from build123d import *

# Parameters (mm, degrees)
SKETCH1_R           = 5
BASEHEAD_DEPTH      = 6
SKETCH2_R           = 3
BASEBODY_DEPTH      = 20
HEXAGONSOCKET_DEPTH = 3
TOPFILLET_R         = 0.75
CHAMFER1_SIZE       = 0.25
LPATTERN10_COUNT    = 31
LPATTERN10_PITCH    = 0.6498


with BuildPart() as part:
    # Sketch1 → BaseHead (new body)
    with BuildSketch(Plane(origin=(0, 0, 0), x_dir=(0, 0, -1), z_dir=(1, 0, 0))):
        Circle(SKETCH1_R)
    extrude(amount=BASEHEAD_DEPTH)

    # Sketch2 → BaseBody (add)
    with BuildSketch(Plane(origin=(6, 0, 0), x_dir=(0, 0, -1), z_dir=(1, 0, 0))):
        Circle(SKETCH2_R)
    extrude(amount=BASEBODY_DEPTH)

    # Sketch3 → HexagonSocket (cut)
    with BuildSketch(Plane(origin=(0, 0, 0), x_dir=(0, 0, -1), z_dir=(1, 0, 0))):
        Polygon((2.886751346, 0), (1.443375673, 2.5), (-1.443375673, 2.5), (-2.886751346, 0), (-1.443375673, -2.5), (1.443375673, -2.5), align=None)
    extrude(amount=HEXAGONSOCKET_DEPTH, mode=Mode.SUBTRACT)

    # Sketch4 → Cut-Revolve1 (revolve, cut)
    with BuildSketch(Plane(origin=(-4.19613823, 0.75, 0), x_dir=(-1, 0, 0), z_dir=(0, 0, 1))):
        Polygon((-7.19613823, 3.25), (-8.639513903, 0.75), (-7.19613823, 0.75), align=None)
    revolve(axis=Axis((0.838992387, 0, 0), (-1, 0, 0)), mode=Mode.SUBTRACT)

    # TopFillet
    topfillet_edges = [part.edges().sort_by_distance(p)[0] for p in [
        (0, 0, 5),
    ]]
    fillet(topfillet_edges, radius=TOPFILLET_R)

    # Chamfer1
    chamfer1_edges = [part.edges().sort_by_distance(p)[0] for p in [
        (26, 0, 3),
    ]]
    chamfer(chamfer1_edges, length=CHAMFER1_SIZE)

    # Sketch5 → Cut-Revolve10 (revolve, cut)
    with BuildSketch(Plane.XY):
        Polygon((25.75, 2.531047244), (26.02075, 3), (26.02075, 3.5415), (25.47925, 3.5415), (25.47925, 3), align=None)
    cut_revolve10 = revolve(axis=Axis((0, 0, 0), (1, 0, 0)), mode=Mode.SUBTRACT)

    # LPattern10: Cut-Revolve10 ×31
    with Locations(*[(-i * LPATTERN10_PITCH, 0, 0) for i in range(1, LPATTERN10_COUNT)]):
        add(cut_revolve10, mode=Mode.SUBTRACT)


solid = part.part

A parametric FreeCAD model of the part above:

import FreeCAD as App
import Part
import Sketcher

V = App.Vector
Q = App.Units.Quantity


def edges_at(feature, points):
    """Names of the edges that pass closest to the given points."""
    edges = feature.Shape.Edges
    near = lambda p: min(range(len(edges)), key=lambda i: edges[i].distToShape(Part.Vertex(*p))[0])
    return sorted({f"Edge{near(p) + 1}" for p in points})


def add_polygon(sketch, points):
    """Adds a closed chain of lines whose ends are joined by coincident constraints."""
    first, n = sketch.GeometryCount, len(points)
    for a, b in zip(points, points[1:] + points[:1]):
        sketch.addGeometry(Part.LineSegment(App.Vector(*a, 0), App.Vector(*b, 0)), False)
    for i in range(n):
        sketch.addConstraint(Sketcher.Constraint("Coincident", first + i, 2, first + (i + 1) % n, 1))

doc = App.newDocument("Part")
params = doc.addObject("Spreadsheet::Sheet", "Params")
for row, (alias, value) in enumerate([
    ("sketch1_diameter", "10 mm"),
    ("pad1_length", "6 mm"),
    ("sketch2_diameter", "6 mm"),
    ("pad2_length", "20 mm"),
    ("pocket1_length", "3 mm"),
    ("sketch4_height", "2.5 mm"),
    ("groove_angle", "360 deg"),
    ("fillet_radius", "0.75 mm"),
    ("chamfer_size", "0.25 mm"),
    ("groove2_angle", "360 deg"),
    ("linearpattern_pitch", "0.6498 mm"),
], start=1):
    params.set(f"A{row}", alias)
    params.set(f"B{row}", "=" + value)
    params.setAlias(f"B{row}", alias)

body = doc.addObject("PartDesign::Body", "Body")

# Sketch on YZ plane
sketch1 = doc.addObject("Sketcher::SketchObject", "Sketch")
body.addObject(sketch1)
sketch1.AttachmentSupport = (doc.YZ_Plane, [""])
sketch1.MapMode = "FlatFace"
sketch1.addGeometry(Part.Circle(V(0, 0, 0), V(0, 0, 1), 5), False)
sketch1.addConstraint([
    Sketcher.Constraint("Coincident", 0, 3, -1, 1),
    Sketcher.Constraint("Diameter", 0, Q("10 mm")),
])
sketch1.setExpression("Constraints[1]", "Params.sketch1_diameter")
pad1 = doc.addObject("PartDesign::Pad", "Pad")
body.addObject(pad1)
pad1.Profile = sketch1
pad1.setExpression("Length", "Params.pad1_length")

# Sketch on YZ plane
sketch2 = doc.addObject("Sketcher::SketchObject", "Sketch001")
body.addObject(sketch2)
sketch2.AttachmentSupport = (doc.YZ_Plane, [""])
sketch2.MapMode = "FlatFace"
sketch2.AttachmentOffset = App.Placement(V(0, 0, 6), App.Rotation())
sketch2.addGeometry(Part.Circle(V(0, 0, 0), V(0, 0, 1), 3), False)
sketch2.addConstraint([
    Sketcher.Constraint("Coincident", 0, 3, -1, 1),
    Sketcher.Constraint("Diameter", 0, Q("6 mm")),
])
sketch2.setExpression("Constraints[1]", "Params.sketch2_diameter")
pad2 = doc.addObject("PartDesign::Pad", "Pad001")
body.addObject(pad2)
pad2.Profile = sketch2
pad2.setExpression("Length", "Params.pad2_length")

# Sketch on YZ plane
sketch3 = doc.addObject("Sketcher::SketchObject", "Sketch002")
body.addObject(sketch3)
sketch3.AttachmentSupport = (doc.YZ_Plane, [""])
sketch3.MapMode = "FlatFace"
add_polygon(sketch3, [(0, -2.886751), (2.5, -1.443376), (2.5, 1.443376), (0, 2.886751), (-2.5, 1.443376), (-2.5, -1.443376)])  # lines 0-5
sketch3.addConstraint([
    Sketcher.Constraint("Vertical", 1),
    Sketcher.Constraint("Vertical", 4),
    Sketcher.Constraint("Symmetric", 0, 2, 3, 2, -1, 1),
    Sketcher.Constraint("Symmetric", 2, 2, 5, 2, -1, 1),
    Sketcher.Constraint("PointOnObject", 2, 2, -2),
    Sketcher.Constraint("Parallel", 2, 5),
    Sketcher.Constraint("Horizontal", 1, 2, 3, 2),
    Sketcher.Constraint("Angle", 0, Q("30 deg")),
    Sketcher.Constraint("DistanceX", 3, 2, 1, 2, Q("5 mm")),
    Sketcher.Constraint("DistanceY", 1, 1, 1, 2, Q("2.886751 mm")),
])
pocket1 = doc.addObject("PartDesign::Pocket", "Pocket")
body.addObject(pocket1)
pocket1.Profile = sketch3
pocket1.setExpression("Length", "Params.pocket1_length")
pocket1.Reversed = True

# Sketch on XY plane
sketch4 = doc.addObject("Sketcher::SketchObject", "Sketch003")
body.addObject(sketch4)
sketch4.AttachmentSupport = (doc.XY_Plane, [""])
sketch4.MapMode = "FlatFace"
add_polygon(sketch4, [(3, -2.5), (4.443376, 0), (3, 0)])  # lines 0-2
sketch4.addConstraint([
    Sketcher.Constraint("Horizontal", 1),
    Sketcher.Constraint("Vertical", 2),
    Sketcher.Constraint("PointOnObject", 0, 2, -1),
    Sketcher.Constraint("Angle", 0, Q("60 deg")),
    Sketcher.Constraint("DistanceY", 2, 2, 2, 1, Q("2.5 mm")),
    Sketcher.Constraint("DistanceX", -1, 1, 1, 2, Q("3 mm")),
])
sketch4.setExpression("Constraints[7]", "Params.sketch4_height")
groove = doc.addObject("PartDesign::Groove", "Groove")
body.addObject(groove)
groove.Profile = sketch4
groove.ReferenceAxis = (sketch4, ["H_Axis"])
groove.setExpression("Angle", "Params.groove_angle")
doc.recompute()

fillet = doc.addObject("PartDesign::Fillet", "Fillet")
body.addObject(fillet)
fillet.Base = (groove, edges_at(groove, [(0, 0, 5)]))
fillet.setExpression("Radius", "Params.fillet_radius")
doc.recompute()

chamfer = doc.addObject("PartDesign::Chamfer", "Chamfer")
body.addObject(chamfer)
chamfer.Base = (fillet, edges_at(fillet, [(26, 0, 3)]))
chamfer.setExpression("Size", "Params.chamfer_size")

# Sketch on XY plane
sketch5 = doc.addObject("Sketcher::SketchObject", "Sketch004")
body.addObject(sketch5)
sketch5.AttachmentSupport = (doc.XY_Plane, [""])
sketch5.MapMode = "FlatFace"
add_polygon(sketch5, [(25.75, 2.531047), (26.02075, 3), (26.02075, 3.5415), (25.47925, 3.5415), (25.47925, 3)])  # lines 0-4
sketch5.addConstraint([
    Sketcher.Constraint("Vertical", 1),
    Sketcher.Constraint("Horizontal", 2),
    Sketcher.Constraint("Vertical", 3),
    Sketcher.Constraint("Horizontal", 0, 2, 3, 2),
    Sketcher.Constraint("Equal", 2, 1),
    Sketcher.Constraint("Equal", 0, 4),
    Sketcher.Constraint("Angle", 0, Q("60 deg")),
    Sketcher.Constraint("DistanceY", -1, 1, 0, 2, Q("3 mm")),
    Sketcher.Constraint("DistanceX", -1, 1, 4, 2, Q("25.75 mm")),
    Sketcher.Constraint("DistanceX", 2, 2, 2, 1, Q("0.5415 mm")),
])
groove2 = doc.addObject("PartDesign::Groove", "Groove001")
body.addObject(groove2)
groove2.Profile = sketch5
groove2.ReferenceAxis = (sketch5, ["H_Axis"])
groove2.setExpression("Angle", "Params.groove2_angle")
doc.recompute()

linearpattern = doc.addObject("PartDesign::LinearPattern", "LinearPattern")
body.addObject(linearpattern)
linearpattern.Originals = [groove2]
linearpattern.Direction = (doc.X_Axis, [""])
linearpattern.Mode = "offset"
linearpattern.setExpression("Offset", "Params.linearpattern_pitch")
linearpattern.Occurrences = 31
linearpattern.Reversed = True
body.Tip = linearpattern

doc.recompute()
